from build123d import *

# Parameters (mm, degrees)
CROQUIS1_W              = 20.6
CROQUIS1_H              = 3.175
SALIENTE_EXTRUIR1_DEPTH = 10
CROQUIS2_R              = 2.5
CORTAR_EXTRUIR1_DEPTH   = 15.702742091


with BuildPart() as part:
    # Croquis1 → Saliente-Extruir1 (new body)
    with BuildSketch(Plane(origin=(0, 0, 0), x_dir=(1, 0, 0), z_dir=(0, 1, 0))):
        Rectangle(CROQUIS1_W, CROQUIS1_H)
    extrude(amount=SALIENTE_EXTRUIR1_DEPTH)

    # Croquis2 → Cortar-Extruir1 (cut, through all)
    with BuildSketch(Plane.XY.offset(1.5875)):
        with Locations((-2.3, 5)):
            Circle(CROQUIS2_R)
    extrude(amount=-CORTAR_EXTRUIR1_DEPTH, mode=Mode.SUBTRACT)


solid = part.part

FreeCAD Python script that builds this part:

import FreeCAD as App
import Part
import Sketcher
from FreeCAD import Vector
Q = App.Units.Quantity


def add_polygon(sketch, points):
    """Adds a closed chain of lines whose ends are joined by coincident constraints."""
    first, n = sketch.GeometryCount, len(points)
    for a, b in zip(points, points[1:] + points[:1]):
        sketch.addGeometry(Part.LineSegment(App.Vector(*a, 0), App.Vector(*b, 0)), False)
    for i in range(n):
        sketch.addConstraint(Sketcher.Constraint("Coincident", first + i, 2, first + (i + 1) % n, 1))

doc = App.newDocument("Part")
body = doc.addObject("PartDesign::Body", "Body")

sketch1 = body.newObject("Sketcher::SketchObject", "Sketch")
sketch1.AttachmentSupport = (doc.getObject("XZ_Plane"), [""])
sketch1.MapMode = "FlatFace"
add_polygon(sketch1, [(-10.3, -1.6), (-10.3, 1.6), (10.3, 1.6), (10.3, -1.6)])
sketch1.addConstraint([
    Sketcher.Constraint("Vertical", 0),
    Sketcher.Constraint("Horizontal", 1),
    Sketcher.Constraint("Vertical", 2),
    Sketcher.Constraint("Horizontal", 3),
    Sketcher.Constraint("Symmetric", 0, 2, 2, 2, -1, 1),
    Sketcher.Constraint("DistanceX", 1, 1, 1, 2, Q("20.6 mm")),
    Sketcher.Constraint("DistanceY", 0, 1, 0, 2, Q("3.175 mm")),
])
pad1 = body.newObject("PartDesign::Pad", "Pad")
pad1.Profile = sketch1
pad1.Length = 10
pad1.Reversed = True

sketch2 = body.newObject("Sketcher::SketchObject", "Sketch001")
sketch2.AttachmentSupport = (doc.getObject("XY_Plane"), [""])
sketch2.MapMode = "FlatFace"
sketch2.AttachmentOffset = App.Placement(Vector(0, 0, 1.5875), App.Rotation())
sketch2.addGeometry(Part.Circle(Vector(-2.3, 5, 0), Vector(0, 0, 1), 2.5), False)
sketch2.addConstraint([
    Sketcher.Constraint("Diameter", 0, Q("5 mm")),
    Sketcher.Constraint("DistanceY", -1, 1, 0, 3, Q("5 mm")),
    Sketcher.Constraint("DistanceX", 0, 3, -1, 1, Q("2.3 mm")),
])
pocket1 = body.newObject("PartDesign::Pocket", "Pocket")
pocket1.Profile = sketch2
pocket1.Type = "ThroughAll"

doc.recompute()
